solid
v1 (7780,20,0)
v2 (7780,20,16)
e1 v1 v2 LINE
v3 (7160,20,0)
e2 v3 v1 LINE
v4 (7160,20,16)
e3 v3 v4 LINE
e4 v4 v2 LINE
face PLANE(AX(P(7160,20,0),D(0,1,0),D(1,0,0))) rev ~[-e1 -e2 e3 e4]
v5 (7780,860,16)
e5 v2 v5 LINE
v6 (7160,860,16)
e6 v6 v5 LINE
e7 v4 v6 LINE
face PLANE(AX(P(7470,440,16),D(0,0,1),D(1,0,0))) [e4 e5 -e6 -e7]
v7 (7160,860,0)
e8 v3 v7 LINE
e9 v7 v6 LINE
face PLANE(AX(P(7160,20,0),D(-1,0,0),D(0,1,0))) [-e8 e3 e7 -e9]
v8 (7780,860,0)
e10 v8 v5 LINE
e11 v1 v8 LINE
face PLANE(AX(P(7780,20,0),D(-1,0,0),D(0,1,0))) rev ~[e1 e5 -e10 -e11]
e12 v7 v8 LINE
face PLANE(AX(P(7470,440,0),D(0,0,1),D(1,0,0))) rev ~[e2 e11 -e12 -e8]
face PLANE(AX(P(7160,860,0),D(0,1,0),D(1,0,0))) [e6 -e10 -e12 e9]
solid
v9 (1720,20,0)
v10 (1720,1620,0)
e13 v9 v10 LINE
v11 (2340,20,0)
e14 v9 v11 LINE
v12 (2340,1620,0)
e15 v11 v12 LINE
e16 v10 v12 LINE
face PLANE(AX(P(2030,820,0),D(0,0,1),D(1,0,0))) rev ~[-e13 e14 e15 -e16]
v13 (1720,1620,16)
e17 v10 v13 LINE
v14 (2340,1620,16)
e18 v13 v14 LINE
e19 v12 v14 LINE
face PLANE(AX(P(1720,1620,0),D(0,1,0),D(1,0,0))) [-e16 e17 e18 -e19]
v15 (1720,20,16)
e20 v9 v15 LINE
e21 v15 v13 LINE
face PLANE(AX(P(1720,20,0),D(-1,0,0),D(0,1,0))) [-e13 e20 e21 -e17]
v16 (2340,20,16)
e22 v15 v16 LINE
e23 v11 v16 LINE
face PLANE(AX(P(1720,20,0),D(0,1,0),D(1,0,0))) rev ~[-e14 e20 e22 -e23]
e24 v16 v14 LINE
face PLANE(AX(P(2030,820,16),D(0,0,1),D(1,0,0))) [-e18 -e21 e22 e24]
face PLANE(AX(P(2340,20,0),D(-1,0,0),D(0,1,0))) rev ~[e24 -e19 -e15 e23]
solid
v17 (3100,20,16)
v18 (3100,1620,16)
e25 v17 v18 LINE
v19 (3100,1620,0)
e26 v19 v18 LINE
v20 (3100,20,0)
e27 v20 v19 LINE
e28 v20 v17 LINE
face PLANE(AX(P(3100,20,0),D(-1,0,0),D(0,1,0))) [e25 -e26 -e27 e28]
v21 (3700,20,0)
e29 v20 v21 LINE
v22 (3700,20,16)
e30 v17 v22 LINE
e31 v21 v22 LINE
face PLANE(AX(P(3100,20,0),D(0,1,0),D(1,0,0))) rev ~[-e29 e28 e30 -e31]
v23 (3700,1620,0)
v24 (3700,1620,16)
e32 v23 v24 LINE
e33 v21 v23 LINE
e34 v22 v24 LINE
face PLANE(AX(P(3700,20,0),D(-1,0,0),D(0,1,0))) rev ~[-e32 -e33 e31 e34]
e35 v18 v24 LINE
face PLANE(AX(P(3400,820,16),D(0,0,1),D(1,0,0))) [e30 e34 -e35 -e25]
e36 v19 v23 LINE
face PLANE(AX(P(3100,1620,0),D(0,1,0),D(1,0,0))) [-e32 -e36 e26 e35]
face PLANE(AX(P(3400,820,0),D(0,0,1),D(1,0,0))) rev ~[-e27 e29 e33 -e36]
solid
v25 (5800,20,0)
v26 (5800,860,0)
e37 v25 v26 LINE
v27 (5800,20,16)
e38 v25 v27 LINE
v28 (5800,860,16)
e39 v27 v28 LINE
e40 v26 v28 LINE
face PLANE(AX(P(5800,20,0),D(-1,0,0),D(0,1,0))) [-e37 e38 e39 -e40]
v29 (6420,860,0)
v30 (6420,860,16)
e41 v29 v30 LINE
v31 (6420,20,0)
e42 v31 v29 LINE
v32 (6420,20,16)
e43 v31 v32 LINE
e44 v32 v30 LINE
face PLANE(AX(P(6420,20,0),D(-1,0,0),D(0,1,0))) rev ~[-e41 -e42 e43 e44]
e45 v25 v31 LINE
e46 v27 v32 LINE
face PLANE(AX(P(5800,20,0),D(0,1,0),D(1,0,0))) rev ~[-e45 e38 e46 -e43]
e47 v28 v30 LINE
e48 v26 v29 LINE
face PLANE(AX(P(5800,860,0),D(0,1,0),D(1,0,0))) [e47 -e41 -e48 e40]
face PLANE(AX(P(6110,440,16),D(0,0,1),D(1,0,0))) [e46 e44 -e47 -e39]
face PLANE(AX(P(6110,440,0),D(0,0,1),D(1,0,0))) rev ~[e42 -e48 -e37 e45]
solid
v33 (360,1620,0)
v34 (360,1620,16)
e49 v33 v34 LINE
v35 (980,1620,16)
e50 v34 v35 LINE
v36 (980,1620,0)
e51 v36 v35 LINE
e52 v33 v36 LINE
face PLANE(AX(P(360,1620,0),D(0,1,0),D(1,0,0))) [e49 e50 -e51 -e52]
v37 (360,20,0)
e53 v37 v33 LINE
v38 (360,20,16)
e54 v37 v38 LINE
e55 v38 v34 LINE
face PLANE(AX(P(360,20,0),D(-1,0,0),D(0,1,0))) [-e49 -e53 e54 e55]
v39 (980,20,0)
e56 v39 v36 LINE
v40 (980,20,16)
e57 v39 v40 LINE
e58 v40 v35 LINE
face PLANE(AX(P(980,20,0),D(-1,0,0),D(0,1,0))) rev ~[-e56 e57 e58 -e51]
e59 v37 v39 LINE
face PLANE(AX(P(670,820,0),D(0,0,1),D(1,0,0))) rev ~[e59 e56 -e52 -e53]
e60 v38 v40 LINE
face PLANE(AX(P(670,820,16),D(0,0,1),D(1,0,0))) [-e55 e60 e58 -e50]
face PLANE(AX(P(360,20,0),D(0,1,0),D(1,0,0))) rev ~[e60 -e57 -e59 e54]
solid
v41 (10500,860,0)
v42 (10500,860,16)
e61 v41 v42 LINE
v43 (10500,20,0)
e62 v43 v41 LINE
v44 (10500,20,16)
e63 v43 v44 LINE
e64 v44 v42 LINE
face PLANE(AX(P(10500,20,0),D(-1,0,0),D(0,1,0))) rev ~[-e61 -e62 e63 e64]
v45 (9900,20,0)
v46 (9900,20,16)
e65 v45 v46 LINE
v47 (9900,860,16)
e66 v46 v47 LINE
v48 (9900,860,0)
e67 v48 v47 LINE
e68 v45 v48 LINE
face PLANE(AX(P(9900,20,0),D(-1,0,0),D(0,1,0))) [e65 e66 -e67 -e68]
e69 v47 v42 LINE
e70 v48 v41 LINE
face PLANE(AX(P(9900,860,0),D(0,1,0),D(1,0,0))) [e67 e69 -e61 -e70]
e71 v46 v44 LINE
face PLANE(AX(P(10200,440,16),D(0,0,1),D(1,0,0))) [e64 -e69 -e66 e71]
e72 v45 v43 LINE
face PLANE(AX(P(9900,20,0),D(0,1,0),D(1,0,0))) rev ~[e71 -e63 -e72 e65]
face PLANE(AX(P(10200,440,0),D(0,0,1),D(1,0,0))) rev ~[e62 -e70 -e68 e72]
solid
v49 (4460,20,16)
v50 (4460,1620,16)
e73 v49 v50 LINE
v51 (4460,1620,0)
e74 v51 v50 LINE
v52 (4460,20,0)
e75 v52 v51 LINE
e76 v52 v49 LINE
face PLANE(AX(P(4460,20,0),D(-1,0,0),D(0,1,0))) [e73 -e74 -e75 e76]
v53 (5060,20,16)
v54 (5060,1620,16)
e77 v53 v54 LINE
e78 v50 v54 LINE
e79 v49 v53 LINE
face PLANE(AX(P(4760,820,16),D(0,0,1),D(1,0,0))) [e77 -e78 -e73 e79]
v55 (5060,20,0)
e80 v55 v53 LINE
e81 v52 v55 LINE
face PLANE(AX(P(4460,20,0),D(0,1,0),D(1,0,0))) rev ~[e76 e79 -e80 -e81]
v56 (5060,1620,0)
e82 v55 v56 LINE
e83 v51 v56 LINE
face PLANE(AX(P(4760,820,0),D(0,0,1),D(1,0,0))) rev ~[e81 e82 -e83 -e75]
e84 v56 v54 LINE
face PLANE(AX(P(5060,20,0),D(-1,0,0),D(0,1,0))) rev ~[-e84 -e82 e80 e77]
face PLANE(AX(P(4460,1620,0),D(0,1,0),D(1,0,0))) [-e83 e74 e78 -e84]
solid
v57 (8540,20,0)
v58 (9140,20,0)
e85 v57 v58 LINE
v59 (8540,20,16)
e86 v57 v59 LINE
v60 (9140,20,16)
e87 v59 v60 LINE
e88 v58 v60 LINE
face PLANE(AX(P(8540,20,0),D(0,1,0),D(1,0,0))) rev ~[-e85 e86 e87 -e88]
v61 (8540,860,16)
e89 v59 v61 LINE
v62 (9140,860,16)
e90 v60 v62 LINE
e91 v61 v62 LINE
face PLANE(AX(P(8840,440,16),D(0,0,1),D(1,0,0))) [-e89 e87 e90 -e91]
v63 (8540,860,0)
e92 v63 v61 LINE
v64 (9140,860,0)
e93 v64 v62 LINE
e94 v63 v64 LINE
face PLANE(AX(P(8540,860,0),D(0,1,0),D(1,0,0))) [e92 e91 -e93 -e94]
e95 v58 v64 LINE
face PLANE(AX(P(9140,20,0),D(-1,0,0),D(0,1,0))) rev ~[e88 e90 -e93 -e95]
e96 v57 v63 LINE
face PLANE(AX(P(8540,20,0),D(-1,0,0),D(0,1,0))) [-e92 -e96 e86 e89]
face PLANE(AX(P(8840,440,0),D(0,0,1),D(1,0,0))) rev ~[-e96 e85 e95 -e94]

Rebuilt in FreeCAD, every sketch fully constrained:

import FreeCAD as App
import Part
import Sketcher
from FreeCAD import Vector


def add_polygon(sketch, points):
    """Adds a closed chain of lines whose ends are joined by coincident constraints."""
    first, n = sketch.GeometryCount, len(points)
    for a, b in zip(points, points[1:] + points[:1]):
        sketch.addGeometry(Part.LineSegment(App.Vector(*a, 0), App.Vector(*b, 0)), False)
    for i in range(n):
        sketch.addConstraint(Sketcher.Constraint("Coincident", first + i, 2, first + (i + 1) % n, 1))

doc = App.newDocument("Part")
params = doc.addObject("Spreadsheet::Sheet", "Params")
for row, (alias, value) in enumerate([
    ("sketch1_width", "620 mm"),
    ("sketch1_width2", "600 mm"),
    ("sketch1_height", "1600 mm"),
    ("sketch1_height2", "840 mm"),
    ("pad1_length", "16 mm"),
], start=1):
    params.set(f"A{row}", alias)
    params.set(f"B{row}", "=" + value)
    params.setAlias(f"B{row}", alias)

body = doc.addObject("PartDesign::Body", "Body")
body.AllowCompound = True

sketch1 = doc.addObject("Sketcher::SketchObject", "Sketch")
body.addObject(sketch1)
sketch1.AttachmentSupport = (doc.XY_Plane, [""])
sketch1.MapMode = "FlatFace"
add_polygon(sketch1, [(360, 1620), (360, 20), (980, 20), (980, 1620)])
add_polygon(sketch1, [(1720, 1620), (1720, 20), (2340, 20), (2340, 1620)])
add_polygon(sketch1, [(3100, 1620), (3100, 20), (3700, 20), (3700, 1620)])
add_polygon(sketch1, [(4460, 1620), (4460, 20), (5060, 20), (5060, 1620)])
add_polygon(sketch1, [(5800, 860), (5800, 20), (6420, 20), (6420, 860)])
add_polygon(sketch1, [(7160, 860), (7160, 20), (7780, 20), (7780, 860)])
add_polygon(sketch1, [(8540, 860), (8540, 20), (9140, 20), (9140, 860)])
add_polygon(sketch1, [(9900, 860), (9900, 20), (10500, 20), (10500, 860)])
sketch1.addConstraint([
    Sketcher.Constraint("Vertical", 0),
    Sketcher.Constraint("Horizontal", 1),
    Sketcher.Constraint("Vertical", 2),
    Sketcher.Constraint("Horizontal", 3),
    Sketcher.Constraint("Vertical", 4),
    Sketcher.Constraint("Horizontal", 5),
    Sketcher.Constraint("Vertical", 6),
    Sketcher.Constraint("Horizontal", 7),
    Sketcher.Constraint("Vertical", 8),
    Sketcher.Constraint("Horizontal", 9),
    Sketcher.Constraint("Vertical", 10),
    Sketcher.Constraint("Horizontal", 11),
    Sketcher.Constraint("Vertical", 12),
    Sketcher.Constraint("Horizontal", 13),
    Sketcher.Constraint("Vertical", 14),
    Sketcher.Constraint("Horizontal", 15),
    Sketcher.Constraint("Vertical", 16),
    Sketcher.Constraint("Horizontal", 17),
    Sketcher.Constraint("Vertical", 18),
    Sketcher.Constraint("Horizontal", 19),
    Sketcher.Constraint("Vertical", 20),
    Sketcher.Constraint("Horizontal", 21),
    Sketcher.Constraint("Vertical", 22),
    Sketcher.Constraint("Horizontal", 23),
    Sketcher.Constraint("Vertical", 24),
    Sketcher.Constraint("Horizontal", 25),
    Sketcher.Constraint("Vertical", 26),
    Sketcher.Constraint("Horizontal", 27),
    Sketcher.Constraint("Vertical", 28),
    Sketcher.Constraint("Horizontal", 29),
    Sketcher.Constraint("Vertical", 30),
    Sketcher.Constraint("Horizontal", 31),
    Sketcher.Constraint("Horizontal", 1, 2, 4, 2),
    Sketcher.Constraint("Horizontal", 3, 2, 6, 2),
    Sketcher.Constraint("Horizontal", 5, 2, 8, 2),
    Sketcher.Constraint("Horizontal", 7, 2, 10, 2),
    Sketcher.Constraint("Horizontal", 9, 2, 12, 2),
    Sketcher.Constraint("Horizontal", 11, 2, 14, 2),
    Sketcher.Constraint("Horizontal", 13, 2, 16, 2),
    Sketcher.Constraint("Horizontal", 17, 2, 20, 2),
    Sketcher.Constraint("Horizontal", 19, 2, 22, 2),
    Sketcher.Constraint("Horizontal", 21, 2, 24, 2),
    Sketcher.Constraint("Horizontal", 23, 2, 26, 2),
    Sketcher.Constraint("Horizontal", 25, 2, 28, 2),
    Sketcher.Constraint("Horizontal", 27, 2, 30, 2),
    Sketcher.Constraint("Equal", 3, 5),
    Sketcher.Constraint("Equal", 11, 13),
    Sketcher.Constraint("Equal", 7, 17),
    Sketcher.Constraint("Equal", 19, 21),
    Sketcher.Constraint("Equal", 15, 25),
    Sketcher.Constraint("Equal", 27, 29),
    Sketcher.Constraint("DistanceX", 1, 1, 1, 2, 620.0),
    Sketcher.Constraint("DistanceX", 9, 1, 9, 2, 600.0),
    Sketcher.Constraint("DistanceY", 0, 2, 0, 1, 1600.0),
    Sketcher.Constraint("DistanceY", 16, 2, 16, 1, 840.0),
    Sketcher.Constraint("DistanceX", -1, 1, 0, 2, 360.0),
    Sketcher.Constraint("DistanceY", -1, 1, 0, 2, 20.0),
    Sketcher.Constraint("DistanceX", -1, 1, 4, 2, 1720.0),
    Sketcher.Constraint("DistanceX", -1, 1, 8, 2, 3100.0),
    Sketcher.Constraint("DistanceX", -1, 1, 12, 2, 4460.0),
    Sketcher.Constraint("DistanceX", -1, 1, 16, 2, 5800.0),
    Sketcher.Constraint("DistanceX", -1, 1, 20, 2, 7160.0),
    Sketcher.Constraint("DistanceX", -1, 1, 24, 2, 8540.0),
    Sketcher.Constraint("DistanceX", -1, 1, 28, 2, 9900.0),
])
sketch1.setExpression("Constraints[83]", "Params.sketch1_width")
sketch1.setExpression("Constraints[84]", "Params.sketch1_width2")
sketch1.setExpression("Constraints[85]", "Params.sketch1_height")
sketch1.setExpression("Constraints[86]", "Params.sketch1_height2")
pad1 = doc.addObject("PartDesign::Pad", "Pad")
body.addObject(pad1)
pad1.Profile = sketch1
pad1.setExpression("Length", "Params.pad1_length")

doc.recompute()
